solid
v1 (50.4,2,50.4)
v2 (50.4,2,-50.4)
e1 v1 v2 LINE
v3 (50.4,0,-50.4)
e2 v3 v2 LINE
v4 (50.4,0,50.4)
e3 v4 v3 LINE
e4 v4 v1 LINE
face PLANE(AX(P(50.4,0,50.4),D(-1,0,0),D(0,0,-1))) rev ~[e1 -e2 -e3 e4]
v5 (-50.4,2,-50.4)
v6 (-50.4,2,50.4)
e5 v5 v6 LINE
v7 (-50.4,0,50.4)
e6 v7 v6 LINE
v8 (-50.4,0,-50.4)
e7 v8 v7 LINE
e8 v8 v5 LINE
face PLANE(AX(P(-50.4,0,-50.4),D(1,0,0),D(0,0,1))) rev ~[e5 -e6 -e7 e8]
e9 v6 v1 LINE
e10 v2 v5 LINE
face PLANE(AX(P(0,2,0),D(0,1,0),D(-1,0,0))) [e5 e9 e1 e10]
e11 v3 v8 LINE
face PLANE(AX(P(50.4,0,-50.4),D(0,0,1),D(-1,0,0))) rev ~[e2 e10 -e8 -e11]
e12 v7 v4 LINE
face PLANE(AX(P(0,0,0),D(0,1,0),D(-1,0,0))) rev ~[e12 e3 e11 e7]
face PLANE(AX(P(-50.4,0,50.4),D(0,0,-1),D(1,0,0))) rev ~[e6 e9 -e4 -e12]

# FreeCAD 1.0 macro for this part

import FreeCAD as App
import Part
import Sketcher

V = App.Vector


def add_polygon(sketch, points):
    """Adds a closed chain of lines whose ends are joined by coincident constraints."""
    first, n = sketch.GeometryCount, len(points)
    for a, b in zip(points, points[1:] + points[:1]):
        sketch.addGeometry(Part.LineSegment(App.Vector(*a, 0), App.Vector(*b, 0)), False)
    for i in range(n):
        sketch.addConstraint(Sketcher.Constraint("Coincident", first + i, 2, first + (i + 1) % n, 1))

doc = App.newDocument("Part")
body = doc.addObject("PartDesign::Body", "Body")

sketch1 = doc.addObject("Sketcher::SketchObject", "Sketch")
body.addObject(sketch1)
sketch1.AttachmentSupport = (doc.XZ_Plane, [""])
sketch1.MapMode = "FlatFace"
add_polygon(sketch1, [(-50, -50), (-50, 50), (50, 50), (50, -50)])
sketch1.addConstraint(Sketcher.Constraint("Vertical", 0))
sketch1.addConstraint(Sketcher.Constraint("Horizontal", 1))
sketch1.addConstraint(Sketcher.Constraint("Vertical", 2))
sketch1.addConstraint(Sketcher.Constraint("Horizontal", 3))
sketch1.addConstraint(Sketcher.Constraint("Symmetric", 0, 2, 2, 2, -1, 1))
sketch1.addConstraint(Sketcher.Constraint("Equal", 3, 0))
sketch1.addConstraint(Sketcher.Constraint("DistanceX", 1, 1, 1, 2, 100.8))
pad1 = doc.addObject("PartDesign::Pad", "Pad")
body.addObject(pad1)
pad1.Profile = sketch1
pad1.Length = 2
pad1.Reversed = True

doc.recompute()
